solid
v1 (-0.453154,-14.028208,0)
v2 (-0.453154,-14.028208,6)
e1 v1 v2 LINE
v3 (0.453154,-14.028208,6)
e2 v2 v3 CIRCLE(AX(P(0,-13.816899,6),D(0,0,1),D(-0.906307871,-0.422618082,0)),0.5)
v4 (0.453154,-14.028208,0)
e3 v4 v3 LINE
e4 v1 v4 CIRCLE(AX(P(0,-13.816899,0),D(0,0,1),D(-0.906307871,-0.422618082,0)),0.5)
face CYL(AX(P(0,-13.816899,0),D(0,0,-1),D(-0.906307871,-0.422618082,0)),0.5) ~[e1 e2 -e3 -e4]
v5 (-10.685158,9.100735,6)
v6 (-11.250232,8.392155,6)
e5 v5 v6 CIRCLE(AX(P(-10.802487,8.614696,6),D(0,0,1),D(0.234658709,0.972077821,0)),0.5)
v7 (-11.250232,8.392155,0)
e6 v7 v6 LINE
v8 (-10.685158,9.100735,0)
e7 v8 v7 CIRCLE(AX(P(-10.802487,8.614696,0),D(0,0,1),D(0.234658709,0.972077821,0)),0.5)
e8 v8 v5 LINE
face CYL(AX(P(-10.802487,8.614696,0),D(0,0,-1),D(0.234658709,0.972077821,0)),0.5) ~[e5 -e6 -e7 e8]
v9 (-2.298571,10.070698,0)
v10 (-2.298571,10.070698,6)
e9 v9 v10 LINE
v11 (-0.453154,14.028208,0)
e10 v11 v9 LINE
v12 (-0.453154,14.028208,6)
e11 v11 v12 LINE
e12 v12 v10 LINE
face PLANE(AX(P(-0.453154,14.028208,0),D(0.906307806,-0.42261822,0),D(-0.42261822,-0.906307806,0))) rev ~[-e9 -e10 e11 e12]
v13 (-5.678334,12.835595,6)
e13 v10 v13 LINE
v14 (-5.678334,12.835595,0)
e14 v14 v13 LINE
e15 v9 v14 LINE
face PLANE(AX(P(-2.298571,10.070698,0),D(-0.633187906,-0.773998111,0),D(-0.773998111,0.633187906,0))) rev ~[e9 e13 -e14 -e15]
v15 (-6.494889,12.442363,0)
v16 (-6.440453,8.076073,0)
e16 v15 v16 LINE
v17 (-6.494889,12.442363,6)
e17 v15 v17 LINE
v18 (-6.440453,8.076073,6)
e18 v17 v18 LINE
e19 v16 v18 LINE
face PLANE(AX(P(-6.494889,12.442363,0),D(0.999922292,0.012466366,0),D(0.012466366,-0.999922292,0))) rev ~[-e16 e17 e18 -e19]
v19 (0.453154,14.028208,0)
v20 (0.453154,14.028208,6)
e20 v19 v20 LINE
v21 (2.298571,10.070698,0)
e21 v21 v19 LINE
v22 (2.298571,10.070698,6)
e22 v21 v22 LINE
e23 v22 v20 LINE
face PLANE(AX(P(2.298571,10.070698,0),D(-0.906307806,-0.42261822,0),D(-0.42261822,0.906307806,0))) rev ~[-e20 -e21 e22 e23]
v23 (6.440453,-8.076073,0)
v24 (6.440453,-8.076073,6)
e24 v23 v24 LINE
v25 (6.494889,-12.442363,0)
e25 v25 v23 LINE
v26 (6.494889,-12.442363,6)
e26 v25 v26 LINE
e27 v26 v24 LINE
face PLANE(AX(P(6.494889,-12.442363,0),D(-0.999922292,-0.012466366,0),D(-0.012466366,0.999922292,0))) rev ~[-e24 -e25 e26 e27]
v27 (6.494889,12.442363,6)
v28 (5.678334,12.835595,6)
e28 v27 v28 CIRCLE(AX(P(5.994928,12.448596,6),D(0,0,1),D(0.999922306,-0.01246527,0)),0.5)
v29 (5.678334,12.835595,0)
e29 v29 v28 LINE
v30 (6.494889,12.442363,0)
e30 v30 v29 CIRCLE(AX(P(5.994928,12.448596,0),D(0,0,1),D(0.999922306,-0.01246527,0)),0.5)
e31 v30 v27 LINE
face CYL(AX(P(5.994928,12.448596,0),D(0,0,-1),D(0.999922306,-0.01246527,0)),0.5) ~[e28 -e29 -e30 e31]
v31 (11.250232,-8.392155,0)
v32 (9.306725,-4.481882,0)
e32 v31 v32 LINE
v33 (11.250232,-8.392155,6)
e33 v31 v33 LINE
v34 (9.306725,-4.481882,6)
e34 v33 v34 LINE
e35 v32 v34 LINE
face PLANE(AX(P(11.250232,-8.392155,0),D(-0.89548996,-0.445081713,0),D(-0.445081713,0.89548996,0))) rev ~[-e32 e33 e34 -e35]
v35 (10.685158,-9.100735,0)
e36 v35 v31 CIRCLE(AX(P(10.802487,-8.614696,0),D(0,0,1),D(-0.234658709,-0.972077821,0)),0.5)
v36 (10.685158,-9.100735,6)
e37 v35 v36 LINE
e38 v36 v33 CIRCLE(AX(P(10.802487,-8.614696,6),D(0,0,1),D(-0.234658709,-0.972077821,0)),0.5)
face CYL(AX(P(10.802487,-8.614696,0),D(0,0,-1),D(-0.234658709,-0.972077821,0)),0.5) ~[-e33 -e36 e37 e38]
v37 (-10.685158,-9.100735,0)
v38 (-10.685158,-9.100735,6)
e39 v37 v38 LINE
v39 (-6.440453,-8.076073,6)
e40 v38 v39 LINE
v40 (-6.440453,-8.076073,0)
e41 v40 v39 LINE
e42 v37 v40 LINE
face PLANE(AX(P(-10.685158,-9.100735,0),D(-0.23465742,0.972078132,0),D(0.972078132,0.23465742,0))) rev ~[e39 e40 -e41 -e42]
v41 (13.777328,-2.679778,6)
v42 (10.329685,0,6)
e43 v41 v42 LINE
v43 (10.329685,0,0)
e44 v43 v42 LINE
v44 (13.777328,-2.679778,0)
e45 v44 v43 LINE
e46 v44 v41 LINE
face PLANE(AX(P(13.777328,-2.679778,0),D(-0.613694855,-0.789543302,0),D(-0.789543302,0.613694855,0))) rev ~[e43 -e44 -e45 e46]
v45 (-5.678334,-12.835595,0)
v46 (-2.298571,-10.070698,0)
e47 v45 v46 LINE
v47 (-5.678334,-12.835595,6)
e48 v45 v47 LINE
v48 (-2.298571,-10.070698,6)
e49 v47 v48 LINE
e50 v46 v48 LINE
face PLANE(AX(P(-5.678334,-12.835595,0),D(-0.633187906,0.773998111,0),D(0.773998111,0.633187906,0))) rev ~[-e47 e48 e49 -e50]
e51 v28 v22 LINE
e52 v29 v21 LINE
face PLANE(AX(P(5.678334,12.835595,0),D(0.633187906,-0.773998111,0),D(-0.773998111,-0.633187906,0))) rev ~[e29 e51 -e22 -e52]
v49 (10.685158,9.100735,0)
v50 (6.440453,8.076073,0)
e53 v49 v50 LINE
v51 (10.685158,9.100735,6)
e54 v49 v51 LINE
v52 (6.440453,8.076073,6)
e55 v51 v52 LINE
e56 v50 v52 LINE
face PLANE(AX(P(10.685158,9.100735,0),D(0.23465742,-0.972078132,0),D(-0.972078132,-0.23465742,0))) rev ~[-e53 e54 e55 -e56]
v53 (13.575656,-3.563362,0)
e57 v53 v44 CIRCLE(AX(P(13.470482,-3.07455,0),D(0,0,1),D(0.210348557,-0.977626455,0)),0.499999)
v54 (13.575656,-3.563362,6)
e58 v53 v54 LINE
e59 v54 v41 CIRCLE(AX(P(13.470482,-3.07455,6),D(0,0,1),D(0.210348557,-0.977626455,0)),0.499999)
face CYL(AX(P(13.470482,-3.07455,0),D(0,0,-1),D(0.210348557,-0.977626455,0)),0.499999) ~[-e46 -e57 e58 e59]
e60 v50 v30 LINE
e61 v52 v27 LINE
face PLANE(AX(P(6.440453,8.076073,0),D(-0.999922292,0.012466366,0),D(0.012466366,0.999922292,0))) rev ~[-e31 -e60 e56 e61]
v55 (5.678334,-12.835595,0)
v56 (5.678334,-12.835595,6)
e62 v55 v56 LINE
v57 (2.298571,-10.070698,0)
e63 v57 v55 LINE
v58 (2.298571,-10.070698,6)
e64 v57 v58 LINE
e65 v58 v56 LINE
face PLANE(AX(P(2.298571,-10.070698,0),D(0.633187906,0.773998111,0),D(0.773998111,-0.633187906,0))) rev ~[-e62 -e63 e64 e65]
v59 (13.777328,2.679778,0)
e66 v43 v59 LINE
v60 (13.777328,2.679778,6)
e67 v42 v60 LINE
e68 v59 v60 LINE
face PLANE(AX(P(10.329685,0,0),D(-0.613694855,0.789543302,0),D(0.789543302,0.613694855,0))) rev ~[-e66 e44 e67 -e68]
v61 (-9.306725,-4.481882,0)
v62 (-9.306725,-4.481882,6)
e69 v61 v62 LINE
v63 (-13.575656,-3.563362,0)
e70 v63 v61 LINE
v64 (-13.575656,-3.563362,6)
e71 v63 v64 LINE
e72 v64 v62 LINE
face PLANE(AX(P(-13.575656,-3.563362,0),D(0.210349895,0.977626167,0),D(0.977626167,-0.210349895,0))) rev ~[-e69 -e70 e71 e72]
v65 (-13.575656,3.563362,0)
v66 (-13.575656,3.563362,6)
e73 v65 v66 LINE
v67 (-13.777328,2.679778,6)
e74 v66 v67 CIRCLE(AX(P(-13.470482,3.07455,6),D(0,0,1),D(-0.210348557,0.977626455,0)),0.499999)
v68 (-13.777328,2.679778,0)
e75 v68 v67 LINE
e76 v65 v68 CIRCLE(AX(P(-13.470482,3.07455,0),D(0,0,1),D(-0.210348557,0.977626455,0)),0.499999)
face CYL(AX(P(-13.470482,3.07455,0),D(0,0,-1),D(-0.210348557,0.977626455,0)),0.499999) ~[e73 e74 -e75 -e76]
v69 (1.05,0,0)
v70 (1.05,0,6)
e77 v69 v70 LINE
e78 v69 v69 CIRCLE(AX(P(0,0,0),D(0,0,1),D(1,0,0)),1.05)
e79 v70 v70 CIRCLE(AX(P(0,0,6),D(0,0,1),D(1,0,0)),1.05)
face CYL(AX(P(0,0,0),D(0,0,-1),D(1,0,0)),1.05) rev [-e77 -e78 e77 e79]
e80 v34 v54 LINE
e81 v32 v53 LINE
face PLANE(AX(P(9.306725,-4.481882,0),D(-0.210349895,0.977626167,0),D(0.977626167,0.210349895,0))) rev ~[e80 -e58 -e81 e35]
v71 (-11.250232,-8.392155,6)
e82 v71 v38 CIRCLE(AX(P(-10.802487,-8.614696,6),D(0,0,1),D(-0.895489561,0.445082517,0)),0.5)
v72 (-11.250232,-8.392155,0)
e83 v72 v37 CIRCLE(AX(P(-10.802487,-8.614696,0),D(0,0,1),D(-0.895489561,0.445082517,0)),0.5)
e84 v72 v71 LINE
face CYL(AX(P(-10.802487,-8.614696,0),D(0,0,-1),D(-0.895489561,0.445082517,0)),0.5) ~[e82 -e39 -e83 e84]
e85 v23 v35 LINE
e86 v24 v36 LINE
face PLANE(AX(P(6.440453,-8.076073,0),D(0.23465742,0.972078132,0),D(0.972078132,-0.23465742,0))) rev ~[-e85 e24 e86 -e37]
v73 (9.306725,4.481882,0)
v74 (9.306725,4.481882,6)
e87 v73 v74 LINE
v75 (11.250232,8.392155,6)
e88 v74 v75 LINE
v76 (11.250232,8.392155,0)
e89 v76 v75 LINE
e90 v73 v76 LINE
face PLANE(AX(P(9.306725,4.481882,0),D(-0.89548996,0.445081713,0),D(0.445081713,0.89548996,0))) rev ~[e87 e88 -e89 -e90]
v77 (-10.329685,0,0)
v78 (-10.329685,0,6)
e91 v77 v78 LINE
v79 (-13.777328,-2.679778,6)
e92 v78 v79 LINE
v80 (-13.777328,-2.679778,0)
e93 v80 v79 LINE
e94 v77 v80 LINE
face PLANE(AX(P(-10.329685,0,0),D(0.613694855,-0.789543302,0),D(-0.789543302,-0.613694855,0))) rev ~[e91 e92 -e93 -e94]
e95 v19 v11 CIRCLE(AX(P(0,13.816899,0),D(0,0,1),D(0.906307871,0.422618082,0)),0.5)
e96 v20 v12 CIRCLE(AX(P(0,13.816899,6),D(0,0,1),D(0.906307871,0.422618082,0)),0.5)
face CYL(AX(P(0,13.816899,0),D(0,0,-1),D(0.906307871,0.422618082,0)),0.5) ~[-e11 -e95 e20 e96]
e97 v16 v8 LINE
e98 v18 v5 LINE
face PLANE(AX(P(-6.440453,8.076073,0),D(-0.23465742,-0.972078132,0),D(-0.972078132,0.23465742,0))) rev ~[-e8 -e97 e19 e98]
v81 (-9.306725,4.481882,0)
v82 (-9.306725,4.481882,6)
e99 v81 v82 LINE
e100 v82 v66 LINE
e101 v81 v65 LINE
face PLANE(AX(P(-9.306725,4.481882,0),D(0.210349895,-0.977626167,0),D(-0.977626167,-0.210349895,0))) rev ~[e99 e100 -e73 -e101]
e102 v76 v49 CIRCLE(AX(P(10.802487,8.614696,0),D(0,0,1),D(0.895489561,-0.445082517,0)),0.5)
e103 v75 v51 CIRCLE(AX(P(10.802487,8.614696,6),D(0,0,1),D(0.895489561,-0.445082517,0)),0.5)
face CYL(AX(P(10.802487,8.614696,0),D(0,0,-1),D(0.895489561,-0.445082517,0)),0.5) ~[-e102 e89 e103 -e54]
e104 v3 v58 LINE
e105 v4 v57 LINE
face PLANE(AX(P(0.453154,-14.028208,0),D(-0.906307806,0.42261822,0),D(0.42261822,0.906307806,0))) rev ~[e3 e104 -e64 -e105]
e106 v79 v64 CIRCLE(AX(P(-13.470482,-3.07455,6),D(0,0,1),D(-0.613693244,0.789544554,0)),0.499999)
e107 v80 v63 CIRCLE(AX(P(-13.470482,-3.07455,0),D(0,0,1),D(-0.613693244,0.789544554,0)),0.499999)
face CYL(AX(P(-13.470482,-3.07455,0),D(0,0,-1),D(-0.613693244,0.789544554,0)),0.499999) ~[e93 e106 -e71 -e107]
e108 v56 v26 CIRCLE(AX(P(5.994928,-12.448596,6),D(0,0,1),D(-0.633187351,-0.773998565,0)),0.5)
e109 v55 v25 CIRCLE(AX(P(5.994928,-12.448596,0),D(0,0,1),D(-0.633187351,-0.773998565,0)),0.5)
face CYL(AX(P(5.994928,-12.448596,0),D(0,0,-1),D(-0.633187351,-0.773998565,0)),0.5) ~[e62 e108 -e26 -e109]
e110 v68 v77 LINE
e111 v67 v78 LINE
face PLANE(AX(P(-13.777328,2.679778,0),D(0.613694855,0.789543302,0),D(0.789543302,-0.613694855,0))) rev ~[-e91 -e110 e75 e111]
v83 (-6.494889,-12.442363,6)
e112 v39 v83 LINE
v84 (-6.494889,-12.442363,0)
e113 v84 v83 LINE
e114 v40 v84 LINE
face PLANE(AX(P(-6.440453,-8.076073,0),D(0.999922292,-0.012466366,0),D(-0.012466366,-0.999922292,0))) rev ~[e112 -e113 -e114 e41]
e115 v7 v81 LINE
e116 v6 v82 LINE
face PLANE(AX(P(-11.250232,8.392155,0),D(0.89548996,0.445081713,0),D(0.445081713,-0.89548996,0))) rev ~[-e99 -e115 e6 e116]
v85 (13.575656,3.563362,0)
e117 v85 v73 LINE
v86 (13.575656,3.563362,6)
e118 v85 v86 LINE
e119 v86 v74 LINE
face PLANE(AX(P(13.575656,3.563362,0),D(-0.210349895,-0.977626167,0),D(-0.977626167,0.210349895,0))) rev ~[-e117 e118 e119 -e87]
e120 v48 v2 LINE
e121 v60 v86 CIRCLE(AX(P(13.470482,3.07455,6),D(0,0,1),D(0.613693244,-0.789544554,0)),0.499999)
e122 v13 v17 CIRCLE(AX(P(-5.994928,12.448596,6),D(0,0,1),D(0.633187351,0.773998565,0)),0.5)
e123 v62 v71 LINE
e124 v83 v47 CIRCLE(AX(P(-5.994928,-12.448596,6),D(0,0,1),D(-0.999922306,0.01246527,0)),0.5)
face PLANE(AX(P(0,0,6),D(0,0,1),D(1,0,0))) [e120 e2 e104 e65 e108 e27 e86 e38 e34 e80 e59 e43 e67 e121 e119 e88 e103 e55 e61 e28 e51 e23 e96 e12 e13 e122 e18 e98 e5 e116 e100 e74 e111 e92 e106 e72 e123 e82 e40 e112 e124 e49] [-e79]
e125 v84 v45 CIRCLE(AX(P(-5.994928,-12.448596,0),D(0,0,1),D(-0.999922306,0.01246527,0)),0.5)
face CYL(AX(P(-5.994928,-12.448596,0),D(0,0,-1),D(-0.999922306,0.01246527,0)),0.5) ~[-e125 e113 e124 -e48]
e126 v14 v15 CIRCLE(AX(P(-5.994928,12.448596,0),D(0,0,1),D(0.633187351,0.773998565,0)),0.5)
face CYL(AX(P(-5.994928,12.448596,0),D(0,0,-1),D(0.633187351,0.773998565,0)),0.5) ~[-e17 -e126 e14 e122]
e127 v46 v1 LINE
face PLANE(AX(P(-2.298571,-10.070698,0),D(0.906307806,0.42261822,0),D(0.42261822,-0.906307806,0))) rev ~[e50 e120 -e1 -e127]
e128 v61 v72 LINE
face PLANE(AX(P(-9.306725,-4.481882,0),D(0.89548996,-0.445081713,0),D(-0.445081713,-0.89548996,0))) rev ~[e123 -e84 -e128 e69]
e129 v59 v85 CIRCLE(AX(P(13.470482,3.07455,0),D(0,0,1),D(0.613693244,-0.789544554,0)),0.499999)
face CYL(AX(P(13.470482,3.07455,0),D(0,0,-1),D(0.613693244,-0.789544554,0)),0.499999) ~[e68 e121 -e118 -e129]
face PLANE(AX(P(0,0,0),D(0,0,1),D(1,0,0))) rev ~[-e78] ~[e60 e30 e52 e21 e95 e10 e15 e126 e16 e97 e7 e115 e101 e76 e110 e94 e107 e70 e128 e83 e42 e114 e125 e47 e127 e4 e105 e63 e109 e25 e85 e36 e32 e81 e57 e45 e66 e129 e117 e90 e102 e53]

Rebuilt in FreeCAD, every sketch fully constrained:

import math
import FreeCAD as App
import Part
import Sketcher

V = App.Vector
Q = App.Units.Quantity

doc = App.newDocument("Part")
body = doc.addObject("PartDesign::Body", "Body")

sketch1 = doc.addObject("Sketcher::SketchObject", "Sketch")
body.addObject(sketch1)
sketch1.AttachmentSupport = (doc.XY_Plane, [""])
sketch1.MapMode = "FlatFace"
sketch1.addGeometry([
    Part.LineSegment(V(-2.3, -10.07, 0), V(-0.45, -14.03, 0)),
    Part.ArcOfCircle(Part.Circle(V(0, -13.82, 0), V(0, 0, 1), 0.5), math.radians(-155), math.radians(-25)),
    Part.LineSegment(V(0.45, -14.03, 0), V(2.3, -10.07, 0)),
    Part.LineSegment(V(2.3, -10.07, 0), V(5.68, -12.84, 0)),
    Part.ArcOfCircle(Part.Circle(V(5.99, -12.45, 0), V(0, 0, 1), 0.5), math.radians(-129), math.radians(1)),
    Part.LineSegment(V(6.49, -12.44, 0), V(6.44, -8.08, 0)),
    Part.LineSegment(V(6.44, -8.08, 0), V(10.69, -9.1, 0)),
    Part.ArcOfCircle(Part.Circle(V(10.8, -8.61, 0), V(0, 0, 1), 0.5), math.radians(-104), math.radians(26)),
    Part.LineSegment(V(11.25, -8.39, 0), V(9.31, -4.48, 0)),
    Part.LineSegment(V(9.31, -4.48, 0), V(13.58, -3.56, 0)),
    Part.ArcOfCircle(Part.Circle(V(13.47, -3.07, 0), V(0, 0, 1), 0.5), math.radians(-78), math.radians(52)),
    Part.LineSegment(V(13.78, -2.68, 0), V(10.33, 0, 0)),
    Part.LineSegment(V(10.33, 0, 0), V(13.78, 2.68, 0)),
    Part.ArcOfCircle(Part.Circle(V(13.47, 3.07, 0), V(0, 0, 1), 0.5), math.radians(-52), math.radians(78)),
    Part.LineSegment(V(13.58, 3.56, 0), V(9.31, 4.48, 0)),
    Part.LineSegment(V(9.31, 4.48, 0), V(11.25, 8.39, 0)),
    Part.ArcOfCircle(Part.Circle(V(10.8, 8.61, 0), V(0, 0, 1), 0.5), math.radians(-26), math.radians(104)),
    Part.LineSegment(V(10.69, 9.1, 0), V(6.44, 8.08, 0)),
    Part.LineSegment(V(6.44, 8.08, 0), V(6.49, 12.44, 0)),
    Part.ArcOfCircle(Part.Circle(V(5.99, 12.45, 0), V(0, 0, 1), 0.5), math.radians(-1), math.radians(129)),
    Part.LineSegment(V(5.68, 12.84, 0), V(2.3, 10.07, 0)),
    Part.LineSegment(V(2.3, 10.07, 0), V(0.45, 14.03, 0)),
    Part.ArcOfCircle(Part.Circle(V(0, 13.82, 0), V(0, 0, 1), 0.5), math.radians(25), math.radians(155)),
    Part.LineSegment(V(-0.45, 14.03, 0), V(-2.3, 10.07, 0)),
    Part.LineSegment(V(-2.3, 10.07, 0), V(-5.68, 12.84, 0)),
    Part.ArcOfCircle(Part.Circle(V(-5.99, 12.45, 0), V(0, 0, 1), 0.5), math.radians(51), math.radians(181)),
    Part.LineSegment(V(-6.49, 12.44, 0), V(-6.44, 8.08, 0)),
    Part.LineSegment(V(-6.44, 8.08, 0), V(-10.69, 9.1, 0)),
    Part.ArcOfCircle(Part.Circle(V(-10.8, 8.61, 0), V(0, 0, 1), 0.5), math.radians(76), math.radians(206)),
    Part.LineSegment(V(-11.25, 8.39, 0), V(-9.31, 4.48, 0)),
    Part.LineSegment(V(-9.31, 4.48, 0), V(-13.58, 3.56, 0)),
    Part.ArcOfCircle(Part.Circle(V(-13.47, 3.07, 0), V(0, 0, 1), 0.5), math.radians(102), math.radians(232)),
    Part.LineSegment(V(-13.78, 2.68, 0), V(-10.33, 0, 0)),
    Part.LineSegment(V(-10.33, 0, 0), V(-13.78, -2.68, 0)),
    Part.ArcOfCircle(Part.Circle(V(-13.47, -3.07, 0), V(0, 0, 1), 0.5), math.radians(128), math.radians(258)),
    Part.LineSegment(V(-13.58, -3.56, 0), V(-9.31, -4.48, 0)),
    Part.LineSegment(V(-9.31, -4.48, 0), V(-11.25, -8.39, 0)),
    Part.ArcOfCircle(Part.Circle(V(-10.8, -8.61, 0), V(0, 0, 1), 0.5), math.radians(154), math.radians(284)),
    Part.LineSegment(V(-10.69, -9.1, 0), V(-6.44, -8.08, 0)),
    Part.LineSegment(V(-6.44, -8.08, 0), V(-6.49, -12.44, 0)),
    Part.ArcOfCircle(Part.Circle(V(-5.99, -12.45, 0), V(0, 0, 1), 0.5), math.radians(179), math.radians(309)),
    Part.LineSegment(V(-5.68, -12.84, 0), V(-2.3, -10.07, 0)),
    Part.Circle(V(0, 0, 0), V(0, 0, 1), 1.05),
], False)
sketch1.addConstraint([
    Sketcher.Constraint("Tangent", 0, 2, 1, 1),
    Sketcher.Constraint("Tangent", 1, 2, 2, 1),
    Sketcher.Constraint("Coincident", 2, 2, 3, 1),
    Sketcher.Constraint("Tangent", 3, 2, 4, 1),
    Sketcher.Constraint("Tangent", 4, 2, 5, 1),
    Sketcher.Constraint("Coincident", 5, 2, 6, 1),
    Sketcher.Constraint("Tangent", 6, 2, 7, 1),
    Sketcher.Constraint("Tangent", 7, 2, 8, 1),
    Sketcher.Constraint("Coincident", 8, 2, 9, 1),
    Sketcher.Constraint("Tangent", 9, 2, 10, 1),
    Sketcher.Constraint("Coincident", 10, 2, 11, 1),
    Sketcher.Constraint("Coincident", 11, 2, 12, 1),
    Sketcher.Constraint("Coincident", 12, 2, 13, 1),
    Sketcher.Constraint("Tangent", 13, 2, 14, 1),
    Sketcher.Constraint("Coincident", 14, 2, 15, 1),
    Sketcher.Constraint("Tangent", 15, 2, 16, 1),
    Sketcher.Constraint("Tangent", 16, 2, 17, 1),
    Sketcher.Constraint("Coincident", 17, 2, 18, 1),
    Sketcher.Constraint("Tangent", 18, 2, 19, 1),
    Sketcher.Constraint("Tangent", 19, 2, 20, 1),
    Sketcher.Constraint("Coincident", 20, 2, 21, 1),
    Sketcher.Constraint("Tangent", 21, 2, 22, 1),
    Sketcher.Constraint("Tangent", 22, 2, 23, 1),
    Sketcher.Constraint("Coincident", 23, 2, 24, 1),
    Sketcher.Constraint("Tangent", 24, 2, 25, 1),
    Sketcher.Constraint("Tangent", 25, 2, 26, 1),
    Sketcher.Constraint("Coincident", 26, 2, 27, 1),
    Sketcher.Constraint("Tangent", 27, 2, 28, 1),
    Sketcher.Constraint("Tangent", 28, 2, 29, 1),
    Sketcher.Constraint("Coincident", 29, 2, 30, 1),
    Sketcher.Constraint("Tangent", 30, 2, 31, 1),
    Sketcher.Constraint("Coincident", 31, 2, 32, 1),
    Sketcher.Constraint("Coincident", 32, 2, 33, 1),
    Sketcher.Constraint("Coincident", 33, 2, 34, 1),
    Sketcher.Constraint("Tangent", 34, 2, 35, 1),
    Sketcher.Constraint("Coincident", 35, 2, 36, 1),
    Sketcher.Constraint("Tangent", 36, 2, 37, 1),
    Sketcher.Constraint("Tangent", 37, 2, 38, 1),
    Sketcher.Constraint("Coincident", 38, 2, 39, 1),
    Sketcher.Constraint("Tangent", 39, 2, 40, 1),
    Sketcher.Constraint("Tangent", 40, 2, 41, 1),
    Sketcher.Constraint("Coincident", 41, 2, 0, 1),
    Sketcher.Constraint("Coincident", 42, 3, -1, 1),
    Sketcher.Constraint("Equal", 1, 4),
    Sketcher.Constraint("Equal", 4, 7),
    Sketcher.Constraint("Equal", 7, 10),
    Sketcher.Constraint("Equal", 10, 13),
    Sketcher.Constraint("Equal", 13, 16),
    Sketcher.Constraint("Equal", 16, 19),
    Sketcher.Constraint("Equal", 19, 22),
    Sketcher.Constraint("Equal", 22, 25),
    Sketcher.Constraint("Equal", 25, 28),
    Sketcher.Constraint("Equal", 28, 31),
    Sketcher.Constraint("Equal", 31, 34),
    Sketcher.Constraint("Equal", 34, 37),
    Sketcher.Constraint("Equal", 37, 40),
    Sketcher.Constraint("Symmetric", 1, 3, 22, 3, -1, 1),
    Sketcher.Constraint("Symmetric", 4, 3, 25, 3, -1, 1),
    Sketcher.Constraint("Symmetric", 7, 3, 28, 3, -1, 1),
    Sketcher.Constraint("Symmetric", 10, 3, 31, 3, -1, 1),
    Sketcher.Constraint("Symmetric", 13, 3, 34, 3, -1, 1),
    Sketcher.Constraint("Symmetric", 16, 3, 37, 3, -1, 1),
    Sketcher.Constraint("Symmetric", 19, 3, 40, 3, -1, 1),
    Sketcher.Constraint("Symmetric", 2, 2, 23, 2, -1, 1),
    Sketcher.Constraint("Symmetric", 5, 2, 26, 2, -1, 1),
    Sketcher.Constraint("Symmetric", 8, 2, 29, 2, -1, 1),
    Sketcher.Constraint("Symmetric", 11, 2, 32, 2, -1, 1),
    Sketcher.Constraint("Symmetric", 14, 2, 35, 2, -1, 1),
    Sketcher.Constraint("Symmetric", 17, 2, 38, 2, -1, 1),
    Sketcher.Constraint("Symmetric", 20, 2, 41, 2, -1, 1),
    Sketcher.Constraint("Symmetric", 19, 3, 25, 3, -2),
    Sketcher.Constraint("Symmetric", 16, 3, 28, 3, -2),
    Sketcher.Constraint("Symmetric", 13, 3, 31, 3, -2),
    Sketcher.Constraint("Symmetric", 0, 2, 1, 2, -2),
    Sketcher.Constraint("Symmetric", 17, 2, 26, 2, -2),
    Sketcher.Constraint("Symmetric", 14, 2, 29, 2, -2),
    Sketcher.Constraint("PointOnObject", 11, 2, -1),
    Sketcher.Constraint("Horizontal", 20, 2, 23, 2),
    Sketcher.Constraint("Horizontal", 12, 2, 31, 2),
    Sketcher.Constraint("Horizontal", 10, 2, 33, 2),
    Sketcher.Constraint("Vertical", 10, 2, 12, 2),
    Sketcher.Constraint("Equal", 2, 3),
    Sketcher.Constraint("Equal", 3, 5),
    Sketcher.Constraint("Equal", 5, 6),
    Sketcher.Constraint("Equal", 6, 8),
    Sketcher.Constraint("Equal", 8, 9),
    Sketcher.Constraint("Equal", 9, 11),
    Sketcher.Constraint("Diameter", 42, Q("2.1 mm")),
    Sketcher.Constraint("Radius", 1, Q("0.5 mm")),
    Sketcher.Constraint("Angle", 0, Q("-65.000003 deg")),
    Sketcher.Constraint("DistanceY", 3, 2, 4, 3, Q("0.386999 mm")),
    Sketcher.Constraint("DistanceY", 1, 3, -1, 1, Q("13.816899 mm")),
    Sketcher.Constraint("DistanceY", 4, 3, 7, 3, Q("3.833899 mm")),
    Sketcher.Constraint("DistanceY", 10, 3, 13, 3, Q("6.149099 mm")),
    Sketcher.Constraint("DistanceY", 1, 3, 2, 2, Q("3.746201 mm")),
    Sketcher.Constraint("DistanceX", 4, 2, 7, 3, Q("4.307598 mm")),
    Sketcher.Constraint("DistanceX", 6, 2, 9, 2, Q("2.890498 mm")),
    Sketcher.Constraint("DistanceX", -1, 1, 10, 2, Q("13.777328 mm")),
])
pad1 = doc.addObject("PartDesign::Pad", "Pad")
body.addObject(pad1)
pad1.Profile = sketch1
pad1.Length = 6

doc.recompute()
